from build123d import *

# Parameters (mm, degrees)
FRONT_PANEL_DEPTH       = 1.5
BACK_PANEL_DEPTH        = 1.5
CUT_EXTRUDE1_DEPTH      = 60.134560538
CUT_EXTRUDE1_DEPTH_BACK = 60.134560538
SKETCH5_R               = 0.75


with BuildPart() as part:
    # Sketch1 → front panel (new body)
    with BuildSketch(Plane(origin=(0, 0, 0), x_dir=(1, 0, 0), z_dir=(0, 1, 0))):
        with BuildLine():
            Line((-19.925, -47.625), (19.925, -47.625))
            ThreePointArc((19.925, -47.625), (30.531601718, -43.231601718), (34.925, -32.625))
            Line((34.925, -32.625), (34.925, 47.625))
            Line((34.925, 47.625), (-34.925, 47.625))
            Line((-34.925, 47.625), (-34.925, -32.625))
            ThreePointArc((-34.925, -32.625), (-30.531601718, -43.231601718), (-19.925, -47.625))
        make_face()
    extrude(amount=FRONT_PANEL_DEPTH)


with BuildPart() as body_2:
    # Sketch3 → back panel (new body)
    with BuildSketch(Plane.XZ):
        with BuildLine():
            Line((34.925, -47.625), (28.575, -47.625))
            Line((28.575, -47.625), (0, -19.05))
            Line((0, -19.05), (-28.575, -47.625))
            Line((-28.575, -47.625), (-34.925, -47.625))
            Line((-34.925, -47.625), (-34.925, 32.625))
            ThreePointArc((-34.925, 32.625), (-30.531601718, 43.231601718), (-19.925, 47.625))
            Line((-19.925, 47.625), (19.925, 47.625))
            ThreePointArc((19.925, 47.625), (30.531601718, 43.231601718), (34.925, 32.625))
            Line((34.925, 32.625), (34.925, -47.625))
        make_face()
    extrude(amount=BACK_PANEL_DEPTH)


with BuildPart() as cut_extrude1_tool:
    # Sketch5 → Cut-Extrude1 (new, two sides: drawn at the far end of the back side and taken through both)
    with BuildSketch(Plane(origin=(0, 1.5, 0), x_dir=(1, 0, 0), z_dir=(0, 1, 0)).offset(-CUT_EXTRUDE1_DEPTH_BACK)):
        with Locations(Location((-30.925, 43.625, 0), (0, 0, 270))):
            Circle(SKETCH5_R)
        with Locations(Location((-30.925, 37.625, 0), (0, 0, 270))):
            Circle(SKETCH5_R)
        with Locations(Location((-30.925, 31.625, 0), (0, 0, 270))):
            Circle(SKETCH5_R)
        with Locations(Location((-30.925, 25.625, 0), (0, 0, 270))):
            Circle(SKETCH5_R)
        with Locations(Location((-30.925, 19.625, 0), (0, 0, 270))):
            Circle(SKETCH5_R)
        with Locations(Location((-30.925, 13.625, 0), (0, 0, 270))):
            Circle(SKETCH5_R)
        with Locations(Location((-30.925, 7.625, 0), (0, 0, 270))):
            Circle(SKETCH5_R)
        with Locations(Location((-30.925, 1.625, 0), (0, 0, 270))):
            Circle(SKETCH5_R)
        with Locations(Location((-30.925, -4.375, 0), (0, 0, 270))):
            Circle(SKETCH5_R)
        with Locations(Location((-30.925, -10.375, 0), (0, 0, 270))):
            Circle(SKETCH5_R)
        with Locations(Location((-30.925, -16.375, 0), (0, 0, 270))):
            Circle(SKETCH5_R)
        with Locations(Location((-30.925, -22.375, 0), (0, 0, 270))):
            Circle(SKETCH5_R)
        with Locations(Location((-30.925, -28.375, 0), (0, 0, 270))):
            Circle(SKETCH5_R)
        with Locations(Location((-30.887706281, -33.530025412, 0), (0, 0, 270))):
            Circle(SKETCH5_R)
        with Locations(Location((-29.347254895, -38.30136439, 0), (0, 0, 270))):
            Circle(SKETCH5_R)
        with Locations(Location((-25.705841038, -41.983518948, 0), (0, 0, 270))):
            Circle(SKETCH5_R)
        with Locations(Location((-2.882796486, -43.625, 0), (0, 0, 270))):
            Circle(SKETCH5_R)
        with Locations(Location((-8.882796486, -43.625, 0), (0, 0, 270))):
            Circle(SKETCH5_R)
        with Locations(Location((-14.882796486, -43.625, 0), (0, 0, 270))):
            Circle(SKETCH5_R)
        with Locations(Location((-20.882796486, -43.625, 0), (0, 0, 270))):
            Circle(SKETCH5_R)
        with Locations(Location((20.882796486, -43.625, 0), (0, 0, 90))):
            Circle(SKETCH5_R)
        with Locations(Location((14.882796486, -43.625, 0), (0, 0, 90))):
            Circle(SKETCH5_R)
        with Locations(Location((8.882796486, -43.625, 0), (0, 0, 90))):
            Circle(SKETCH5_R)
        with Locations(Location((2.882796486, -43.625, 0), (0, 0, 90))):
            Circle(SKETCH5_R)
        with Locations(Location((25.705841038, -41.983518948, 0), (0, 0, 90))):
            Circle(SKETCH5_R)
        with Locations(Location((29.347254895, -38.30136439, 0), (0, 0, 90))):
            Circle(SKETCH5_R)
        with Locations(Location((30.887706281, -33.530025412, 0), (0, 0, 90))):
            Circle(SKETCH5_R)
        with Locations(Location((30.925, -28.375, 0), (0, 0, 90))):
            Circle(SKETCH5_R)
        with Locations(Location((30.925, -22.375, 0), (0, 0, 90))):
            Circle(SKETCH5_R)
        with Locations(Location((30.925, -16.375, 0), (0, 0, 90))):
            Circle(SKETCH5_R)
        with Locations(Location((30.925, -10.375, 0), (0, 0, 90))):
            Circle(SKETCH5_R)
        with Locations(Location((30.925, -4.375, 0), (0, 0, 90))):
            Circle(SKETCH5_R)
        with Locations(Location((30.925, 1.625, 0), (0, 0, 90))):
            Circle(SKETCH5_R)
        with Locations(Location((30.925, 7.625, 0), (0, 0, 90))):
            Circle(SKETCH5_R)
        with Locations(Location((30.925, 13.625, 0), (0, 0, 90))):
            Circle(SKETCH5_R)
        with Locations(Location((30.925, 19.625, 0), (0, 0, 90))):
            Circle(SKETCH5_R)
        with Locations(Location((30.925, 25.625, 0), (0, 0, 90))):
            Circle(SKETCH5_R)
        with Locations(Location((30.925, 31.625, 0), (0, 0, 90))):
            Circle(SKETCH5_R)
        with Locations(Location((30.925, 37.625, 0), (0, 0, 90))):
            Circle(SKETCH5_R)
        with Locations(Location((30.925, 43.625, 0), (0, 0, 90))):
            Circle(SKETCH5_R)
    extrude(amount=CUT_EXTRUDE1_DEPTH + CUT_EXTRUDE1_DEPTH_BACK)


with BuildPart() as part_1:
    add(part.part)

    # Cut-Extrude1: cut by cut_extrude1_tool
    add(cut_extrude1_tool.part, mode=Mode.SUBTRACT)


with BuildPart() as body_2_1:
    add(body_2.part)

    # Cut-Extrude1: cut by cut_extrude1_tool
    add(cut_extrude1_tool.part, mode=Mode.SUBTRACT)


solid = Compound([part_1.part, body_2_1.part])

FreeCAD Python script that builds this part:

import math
import FreeCAD as App
import Part
import Sketcher
from FreeCAD import Vector

doc = App.newDocument("Part")
body = doc.addObject("PartDesign::Body", "Body")

# Sketch on XZ plane
sketch1 = body.newObject("Sketcher::SketchObject", "Sketch")
sketch1.AttachmentSupport = (doc.getObject("XZ_Plane"), [""])
sketch1.MapMode = "FlatFace"
sketch1.addGeometry([
    Part.LineSegment(Vector(-20, 48, 0), Vector(20, 48, 0)),  # 0
    Part.ArcOfCircle(Part.Circle(Vector(20, 33, 0), Vector(0, 0, 1), 15), math.radians(0), math.radians(90)),  # 1
    Part.LineSegment(Vector(35, 33, 0), Vector(35, -48, 0)),  # 2
    Part.LineSegment(Vector(35, -48, 0), Vector(-35, -48, 0)),  # 3
    Part.LineSegment(Vector(-35, -48, 0), Vector(-35, 33, 0)),  # 4
    Part.ArcOfCircle(Part.Circle(Vector(-20, 33, 0), Vector(0, 0, 1), 15), math.radians(90), math.radians(180)),  # 5
], False)
sketch1.addConstraint([
    Sketcher.Constraint("Tangent", 0, 2, 1, 2),
    Sketcher.Constraint("Tangent", 1, 1, 2, 1),
    Sketcher.Constraint("Coincident", 2, 2, 3, 1),
    Sketcher.Constraint("Coincident", 3, 2, 4, 1),
    Sketcher.Constraint("Tangent", 4, 2, 5, 2),
    Sketcher.Constraint("Tangent", 5, 1, 0, 1),
    Sketcher.Constraint("Horizontal", 0),
    Sketcher.Constraint("Vertical", 2),
    Sketcher.Constraint("Horizontal", 3),
    Sketcher.Constraint("Vertical", 4),
    Sketcher.Constraint("Equal", 1, 5),
    Sketcher.Constraint("Radius", 1, 15.0),
    Sketcher.Constraint("DistanceX", 0, 1, 0, 2, 39.85),
    Sketcher.Constraint("DistanceY", 2, 2, 2, 1, 80.25),
    Sketcher.Constraint("DistanceX", -1, 1, 1, 3, 19.925),
    Sketcher.Constraint("DistanceY", -1, 1, 1, 3, 32.625),
])
pad1 = body.newObject("PartDesign::Pad", "Pad")
pad1.Profile = sketch1
pad1.Length = 1.5
pad1.Reversed = True
body2 = doc.addObject("PartDesign::Body", "Body001")

# Sketch on XZ plane
sketch2 = body2.newObject("Sketcher::SketchObject", "Sketch001")
sketch2.AttachmentSupport = (doc.getObject("XZ_Plane001"), [""])
sketch2.MapMode = "FlatFace"
sketch2.addGeometry([
    Part.LineSegment(Vector(29, -48, 0), Vector(35, -48, 0)),  # 0
    Part.LineSegment(Vector(35, -48, 0), Vector(35, 33, 0)),  # 1
    Part.ArcOfCircle(Part.Circle(Vector(20, 33, 0), Vector(0, 0, 1), 15), math.radians(0), math.radians(90)),  # 2
    Part.LineSegment(Vector(20, 48, 0), Vector(-20, 48, 0)),  # 3
    Part.ArcOfCircle(Part.Circle(Vector(-20, 33, 0), Vector(0, 0, 1), 15), math.radians(90), math.radians(180)),  # 4
    Part.LineSegment(Vector(-35, 33, 0), Vector(-35, -48, 0)),  # 5
    Part.LineSegment(Vector(-35, -48, 0), Vector(-29, -48, 0)),  # 6
    Part.LineSegment(Vector(-29, -48, 0), Vector(0, -19, 0)),  # 7
    Part.LineSegment(Vector(0, -19, 0), Vector(29, -48, 0)),  # 8
], False)
sketch2.addConstraint([
    Sketcher.Constraint("Coincident", 0, 2, 1, 1),
    Sketcher.Constraint("Tangent", 1, 2, 2, 1),
    Sketcher.Constraint("Tangent", 2, 2, 3, 1),
    Sketcher.Constraint("Tangent", 3, 2, 4, 1),
    Sketcher.Constraint("Tangent", 4, 2, 5, 1),
    Sketcher.Constraint("Coincident", 5, 2, 6, 1),
    Sketcher.Constraint("Coincident", 6, 2, 7, 1),
    Sketcher.Constraint("Coincident", 7, 2, 8, 1),
    Sketcher.Constraint("Coincident", 8, 2, 0, 1),
    Sketcher.Constraint("Horizontal", 0),
    Sketcher.Constraint("Vertical", 1),
    Sketcher.Constraint("Horizontal", 3),
    Sketcher.Constraint("Vertical", 5),
    Sketcher.Constraint("Horizontal", 6),
    Sketcher.Constraint("Equal", 2, 4),
    Sketcher.Constraint("Symmetric", 0, 2, 5, 2, -2),
    Sketcher.Constraint("PointOnObject", 7, 2, -2),
    Sketcher.Constraint("Perpendicular", 7, 8),
    Sketcher.Constraint("Equal", 0, 6),
    Sketcher.Constraint("Radius", 2, 15.0),
    Sketcher.Constraint("DistanceX", 0, 1, 0, 2, 6.35),
    Sketcher.Constraint("DistanceX", 3, 2, 3, 1, 39.85),
    Sketcher.Constraint("DistanceY", 1, 1, 1, 2, 80.25),
    Sketcher.Constraint("DistanceY", 7, 2, -1, 1, 19.05),
])
pad2 = body2.newObject("PartDesign::Pad", "Pad001")
pad2.Profile = sketch2
pad2.Length = 1.5
body3 = doc.addObject("PartDesign::Body", "Body002")
body3.AllowCompound = True

# Sketch on XZ plane
sketch3 = body3.newObject("Sketcher::SketchObject", "Sketch002")
sketch3.AttachmentSupport = (doc.getObject("XZ_Plane002"), [""])
sketch3.MapMode = "FlatFace"
sketch3.AttachmentOffset = App.Placement(Vector(0, 0, -1.5), App.Rotation())
sketch3.addGeometry([
    Part.Circle(Vector(-30.9, -43.6, 0), Vector(0, 0, 1), 0.8),  # 0
    Part.Circle(Vector(-30.9, -37.6, 0), Vector(0, 0, 1), 0.8),  # 1
    Part.Circle(Vector(-30.9, -31.6, 0), Vector(0, 0, 1), 0.8),  # 2
    Part.Circle(Vector(-30.9, -25.6, 0), Vector(0, 0, 1), 0.8),  # 3
    Part.Circle(Vector(-30.9, -19.6, 0), Vector(0, 0, 1), 0.8),  # 4
    Part.Circle(Vector(-30.9, -13.6, 0), Vector(0, 0, 1), 0.8),  # 5
    Part.Circle(Vector(-30.9, -7.6, 0), Vector(0, 0, 1), 0.8),  # 6
    Part.Circle(Vector(-30.9, -1.6, 0), Vector(0, 0, 1), 0.8),  # 7
    Part.Circle(Vector(-30.9, 4.4, 0), Vector(0, 0, 1), 0.8),  # 8
    Part.Circle(Vector(-30.9, 10.4, 0), Vector(0, 0, 1), 0.8),  # 9
    Part.Circle(Vector(-30.9, 16.4, 0), Vector(0, 0, 1), 0.8),  # 10
    Part.Circle(Vector(-30.9, 22.4, 0), Vector(0, 0, 1), 0.8),  # 11
    Part.Circle(Vector(-30.9, 28.4, 0), Vector(0, 0, 1), 0.8),  # 12
    Part.Circle(Vector(-30.9, 33.5, 0), Vector(0, 0, 1), 0.8),  # 13
    Part.Circle(Vector(-29.3, 38.3, 0), Vector(0, 0, 1), 0.8),  # 14
    Part.Circle(Vector(-25.7, 42, 0), Vector(0, 0, 1), 0.8),  # 15
    Part.Circle(Vector(-2.9, 43.6, 0), Vector(0, 0, 1), 0.8),  # 16
    Part.Circle(Vector(-8.9, 43.6, 0), Vector(0, 0, 1), 0.8),  # 17
    Part.Circle(Vector(-14.9, 43.6, 0), Vector(0, 0, 1), 0.8),  # 18
    Part.Circle(Vector(-20.9, 43.6, 0), Vector(0, 0, 1), 0.8),  # 19
    Part.Circle(Vector(20.9, 43.6, 0), Vector(0, 0, 1), 0.8),  # 20
    Part.Circle(Vector(14.9, 43.6, 0), Vector(0, 0, 1), 0.8),  # 21
    Part.Circle(Vector(8.9, 43.6, 0), Vector(0, 0, 1), 0.8),  # 22
    Part.Circle(Vector(2.9, 43.6, 0), Vector(0, 0, 1), 0.8),  # 23
    Part.Circle(Vector(25.7, 42, 0), Vector(0, 0, 1), 0.8),  # 24
    Part.Circle(Vector(29.3, 38.3, 0), Vector(0, 0, 1), 0.8),  # 25
    Part.Circle(Vector(30.9, 33.5, 0), Vector(0, 0, 1), 0.8),  # 26
    Part.Circle(Vector(30.9, 28.4, 0), Vector(0, 0, 1), 0.8),  # 27
    Part.Circle(Vector(30.9, 22.4, 0), Vector(0, 0, 1), 0.8),  # 28
    Part.Circle(Vector(30.9, 16.4, 0), Vector(0, 0, 1), 0.8),  # 29
    Part.Circle(Vector(30.9, 10.4, 0), Vector(0, 0, 1), 0.8),  # 30
    Part.Circle(Vector(30.9, 4.4, 0), Vector(0, 0, 1), 0.8),  # 31
    Part.Circle(Vector(30.9, -1.6, 0), Vector(0, 0, 1), 0.8),  # 32
    Part.Circle(Vector(30.9, -7.6, 0), Vector(0, 0, 1), 0.8),  # 33
    Part.Circle(Vector(30.9, -13.6, 0), Vector(0, 0, 1), 0.8),  # 34
    Part.Circle(Vector(30.9, -19.6, 0), Vector(0, 0, 1), 0.8),  # 35
    Part.Circle(Vector(30.9, -25.6, 0), Vector(0, 0, 1), 0.8),  # 36
    Part.Circle(Vector(30.9, -31.6, 0), Vector(0, 0, 1), 0.8),  # 37
    Part.Circle(Vector(30.9, -37.6, 0), Vector(0, 0, 1), 0.8),  # 38
    Part.Circle(Vector(30.9, -43.6, 0), Vector(0, 0, 1), 0.8),  # 39
], False)
sketch3.addConstraint([
    Sketcher.Constraint("Equal", 0, 1),
    Sketcher.Constraint("Equal", 1, 2),
    Sketcher.Constraint("Equal", 2, 3),
    Sketcher.Constraint("Equal", 3, 4),
    Sketcher.Constraint("Equal", 4, 5),
    Sketcher.Constraint("Equal", 5, 6),
    Sketcher.Constraint("Equal", 6, 7),
    Sketcher.Constraint("Equal", 7, 8),
    Sketcher.Constraint("Equal", 8, 9),
    Sketcher.Constraint("Equal", 9, 10),
    Sketcher.Constraint("Equal", 10, 11),
    Sketcher.Constraint("Equal", 11, 12),
    Sketcher.Constraint("Equal", 12, 13),
    Sketcher.Constraint("Equal", 13, 14),
    Sketcher.Constraint("Equal", 14, 15),
    Sketcher.Constraint("Equal", 15, 16),
    Sketcher.Constraint("Equal", 16, 17),
    Sketcher.Constraint("Equal", 17, 18),
    Sketcher.Constraint("Equal", 18, 19),
    Sketcher.Constraint("Equal", 19, 20),
    Sketcher.Constraint("Equal", 20, 21),
    Sketcher.Constraint("Equal", 21, 22),
    Sketcher.Constraint("Equal", 22, 23),
    Sketcher.Constraint("Equal", 23, 24),
    Sketcher.Constraint("Equal", 24, 25),
    Sketcher.Constraint("Equal", 25, 26),
    Sketcher.Constraint("Equal", 26, 27),
    Sketcher.Constraint("Equal", 27, 28),
    Sketcher.Constraint("Equal", 28, 29),
    Sketcher.Constraint("Equal", 29, 30),
    Sketcher.Constraint("Equal", 30, 31),
    Sketcher.Constraint("Equal", 31, 32),
    Sketcher.Constraint("Equal", 32, 33),
    Sketcher.Constraint("Equal", 33, 34),
    Sketcher.Constraint("Equal", 34, 35),
    Sketcher.Constraint("Equal", 35, 36),
    Sketcher.Constraint("Equal", 36, 37),
    Sketcher.Constraint("Equal", 37, 38),
    Sketcher.Constraint("Equal", 38, 39),
    Sketcher.Constraint("Symmetric", 19, 3, 20, 3, -2),
    Sketcher.Constraint("Symmetric", 18, 3, 21, 3, -2),
    Sketcher.Constraint("Symmetric", 17, 3, 22, 3, -2),
    Sketcher.Constraint("Symmetric", 16, 3, 23, 3, -2),
    Sketcher.Constraint("Symmetric", 15, 3, 24, 3, -2),
    Sketcher.Constraint("Symmetric", 14, 3, 25, 3, -2),
    Sketcher.Constraint("Symmetric", 13, 3, 26, 3, -2),
    Sketcher.Constraint("Symmetric", 12, 3, 27, 3, -2),
    Sketcher.Constraint("Symmetric", 11, 3, 28, 3, -2),
    Sketcher.Constraint("Symmetric", 10, 3, 29, 3, -2),
    Sketcher.Constraint("Symmetric", 9, 3, 30, 3, -2),
    Sketcher.Constraint("Symmetric", 8, 3, 31, 3, -2),
    Sketcher.Constraint("Symmetric", 7, 3, 32, 3, -2),
    Sketcher.Constraint("Symmetric", 6, 3, 33, 3, -2),
    Sketcher.Constraint("Symmetric", 5, 3, 34, 3, -2),
    Sketcher.Constraint("Symmetric", 4, 3, 35, 3, -2),
    Sketcher.Constraint("Symmetric", 3, 3, 36, 3, -2),
    Sketcher.Constraint("Symmetric", 2, 3, 37, 3, -2),
    Sketcher.Constraint("Symmetric", 1, 3, 38, 3, -2),
    Sketcher.Constraint("Symmetric", 0, 3, 39, 3, -2),
    Sketcher.Constraint("Horizontal", 16, 3, 17, 3),
    Sketcher.Constraint("Horizontal", 17, 3, 18, 3),
    Sketcher.Constraint("Horizontal", 18, 3, 19, 3),
    Sketcher.Constraint("Vertical", 0, 3, 1, 3),
    Sketcher.Constraint("Vertical", 1, 3, 2, 3),
    Sketcher.Constraint("Vertical", 2, 3, 3, 3),
    Sketcher.Constraint("Vertical", 3, 3, 4, 3),
    Sketcher.Constraint("Vertical", 4, 3, 5, 3),
    Sketcher.Constraint("Vertical", 5, 3, 6, 3),
    Sketcher.Constraint("Vertical", 6, 3, 7, 3),
    Sketcher.Constraint("Vertical", 7, 3, 8, 3),
    Sketcher.Constraint("Vertical", 8, 3, 9, 3),
    Sketcher.Constraint("Vertical", 9, 3, 10, 3),
    Sketcher.Constraint("Vertical", 10, 3, 11, 3),
    Sketcher.Constraint("Vertical", 11, 3, 12, 3),
    Sketcher.Constraint("Diameter", 0, 1.5),
    Sketcher.Constraint("DistanceY", 0, 3, 1, 3, 6.0),
    Sketcher.Constraint("DistanceY", 1, 3, 2, 3, 6.0),
    Sketcher.Constraint("DistanceY", 2, 3, 3, 3, 6.0),
    Sketcher.Constraint("DistanceY", 3, 3, 4, 3, 6.0),
    Sketcher.Constraint("DistanceY", 4, 3, 5, 3, 6.0),
    Sketcher.Constraint("DistanceY", 5, 3, 6, 3, 6.0),
    Sketcher.Constraint("DistanceY", 6, 3, 7, 3, 6.0),
    Sketcher.Constraint("DistanceY", 7, 3, 8, 3, 6.0),
    Sketcher.Constraint("DistanceY", 8, 3, 9, 3, 6.0),
    Sketcher.Constraint("DistanceY", 9, 3, 10, 3, 6.0),
    Sketcher.Constraint("DistanceY", 10, 3, 11, 3, 6.0),
    Sketcher.Constraint("DistanceY", 11, 3, 12, 3, 6.0),
    Sketcher.Constraint("DistanceX", 17, 3, 16, 3, 6.0),
    Sketcher.Constraint("DistanceX", 18, 3, 17, 3, 6.0),
    Sketcher.Constraint("DistanceX", 19, 3, 18, 3, 6.0),
    Sketcher.Constraint("DistanceY", 12, 3, 16, 3, 15.25),
    Sketcher.Constraint("DistanceX", 0, 3, -1, 1, 30.925),
    Sketcher.Constraint("DistanceY", 0, 3, -1, 1, 43.625),
    Sketcher.Constraint("DistanceX", 15, 3, -1, 1, 25.705841),
    Sketcher.Constraint("DistanceY", -1, 1, 15, 3, 41.983519),
    Sketcher.Constraint("DistanceX", 13, 3, 14, 3, 1.540451),
    Sketcher.Constraint("DistanceY", 13, 3, 14, 3, 4.771339),
    Sketcher.Constraint("DistanceX", 14, 3, 16, 3, 26.464458),
    Sketcher.Constraint("DistanceX", 13, 3, -1, 1, 30.887706),
    Sketcher.Constraint("DistanceY", -1, 1, 13, 3, 33.530025),
])
pad3 = body3.newObject("PartDesign::Pad", "Pad002")
pad3.Profile = sketch3
pad3.Type = "TwoLengths"
pad3.Length = 60.134561
pad3.Length2 = 60.134561
pad3.Reversed = True
doc.recompute()

body4 = doc.addObject("PartDesign::Body", "Body003")
body4.BaseFeature = body3
boolean = body.newObject("PartDesign::Boolean", "Boolean")
boolean.Type = "Cut"
boolean.addObjects([body4])
doc.recompute()

boolean2 = body2.newObject("PartDesign::Boolean", "Boolean001")
boolean2.Type = "Cut"
boolean2.addObjects([body3])

doc.recompute()
